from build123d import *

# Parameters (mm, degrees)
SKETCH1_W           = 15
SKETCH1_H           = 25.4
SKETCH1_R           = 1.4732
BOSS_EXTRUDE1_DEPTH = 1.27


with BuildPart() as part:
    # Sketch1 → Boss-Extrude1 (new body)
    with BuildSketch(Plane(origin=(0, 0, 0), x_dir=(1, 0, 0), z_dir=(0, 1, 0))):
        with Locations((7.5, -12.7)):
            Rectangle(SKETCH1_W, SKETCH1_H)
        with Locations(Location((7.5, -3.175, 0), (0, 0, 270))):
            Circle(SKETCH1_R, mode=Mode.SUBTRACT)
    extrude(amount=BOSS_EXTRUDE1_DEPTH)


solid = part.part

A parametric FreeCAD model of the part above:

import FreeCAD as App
import Part
import Sketcher

V = App.Vector
Q = App.Units.Quantity


def add_polygon(sketch, points):
    """Adds a closed chain of lines whose ends are joined by coincident constraints."""
    first, n = sketch.GeometryCount, len(points)
    for a, b in zip(points, points[1:] + points[:1]):
        sketch.addGeometry(Part.LineSegment(App.Vector(*a, 0), App.Vector(*b, 0)), False)
    for i in range(n):
        sketch.addConstraint(Sketcher.Constraint("Coincident", first + i, 2, first + (i + 1) % n, 1))

doc = App.newDocument("Part")
body = doc.addObject("PartDesign::Body", "Body")

# Sketch on XZ plane
sketch1 = body.newObject("Sketcher::SketchObject", "Sketch")
sketch1.AttachmentSupport = (doc.getObject("XZ_Plane"), [""])
sketch1.MapMode = "FlatFace"
add_polygon(sketch1, [(0, 0), (0, 25.4), (15, 25.4), (15, 0)])  # lines 0-3
sketch1.addGeometry(Part.Circle(V(7.5, 3.2, 0), V(0, 0, 1), 1.5), False)  # 4
sketch1.addConstraint([
    Sketcher.Constraint("Vertical", 0),
    Sketcher.Constraint("Horizontal", 1),
    Sketcher.Constraint("Vertical", 2),
    Sketcher.Constraint("Horizontal", 3),
    Sketcher.Constraint("Coincident", 3, 2, -1, 1),
    Sketcher.Constraint("DistanceY", 0, 1, 0, 2, Q("1 in")),
    Sketcher.Constraint("Diameter", 4, Q("0.116 in")),
    Sketcher.Constraint("DistanceY", -1, 1, 4, 3, Q("0.125 in")),
    Sketcher.Constraint("DistanceX", 1, 1, 1, 2, Q("15 mm")),
    Sketcher.Constraint("DistanceX", -1, 1, 4, 3, Q("7.5 mm")),
])
pad1 = body.newObject("PartDesign::Pad", "Pad")
pad1.Profile = sketch1
pad1.Length = Q("0.05 in")
pad1.Reversed = True

doc.recompute()
